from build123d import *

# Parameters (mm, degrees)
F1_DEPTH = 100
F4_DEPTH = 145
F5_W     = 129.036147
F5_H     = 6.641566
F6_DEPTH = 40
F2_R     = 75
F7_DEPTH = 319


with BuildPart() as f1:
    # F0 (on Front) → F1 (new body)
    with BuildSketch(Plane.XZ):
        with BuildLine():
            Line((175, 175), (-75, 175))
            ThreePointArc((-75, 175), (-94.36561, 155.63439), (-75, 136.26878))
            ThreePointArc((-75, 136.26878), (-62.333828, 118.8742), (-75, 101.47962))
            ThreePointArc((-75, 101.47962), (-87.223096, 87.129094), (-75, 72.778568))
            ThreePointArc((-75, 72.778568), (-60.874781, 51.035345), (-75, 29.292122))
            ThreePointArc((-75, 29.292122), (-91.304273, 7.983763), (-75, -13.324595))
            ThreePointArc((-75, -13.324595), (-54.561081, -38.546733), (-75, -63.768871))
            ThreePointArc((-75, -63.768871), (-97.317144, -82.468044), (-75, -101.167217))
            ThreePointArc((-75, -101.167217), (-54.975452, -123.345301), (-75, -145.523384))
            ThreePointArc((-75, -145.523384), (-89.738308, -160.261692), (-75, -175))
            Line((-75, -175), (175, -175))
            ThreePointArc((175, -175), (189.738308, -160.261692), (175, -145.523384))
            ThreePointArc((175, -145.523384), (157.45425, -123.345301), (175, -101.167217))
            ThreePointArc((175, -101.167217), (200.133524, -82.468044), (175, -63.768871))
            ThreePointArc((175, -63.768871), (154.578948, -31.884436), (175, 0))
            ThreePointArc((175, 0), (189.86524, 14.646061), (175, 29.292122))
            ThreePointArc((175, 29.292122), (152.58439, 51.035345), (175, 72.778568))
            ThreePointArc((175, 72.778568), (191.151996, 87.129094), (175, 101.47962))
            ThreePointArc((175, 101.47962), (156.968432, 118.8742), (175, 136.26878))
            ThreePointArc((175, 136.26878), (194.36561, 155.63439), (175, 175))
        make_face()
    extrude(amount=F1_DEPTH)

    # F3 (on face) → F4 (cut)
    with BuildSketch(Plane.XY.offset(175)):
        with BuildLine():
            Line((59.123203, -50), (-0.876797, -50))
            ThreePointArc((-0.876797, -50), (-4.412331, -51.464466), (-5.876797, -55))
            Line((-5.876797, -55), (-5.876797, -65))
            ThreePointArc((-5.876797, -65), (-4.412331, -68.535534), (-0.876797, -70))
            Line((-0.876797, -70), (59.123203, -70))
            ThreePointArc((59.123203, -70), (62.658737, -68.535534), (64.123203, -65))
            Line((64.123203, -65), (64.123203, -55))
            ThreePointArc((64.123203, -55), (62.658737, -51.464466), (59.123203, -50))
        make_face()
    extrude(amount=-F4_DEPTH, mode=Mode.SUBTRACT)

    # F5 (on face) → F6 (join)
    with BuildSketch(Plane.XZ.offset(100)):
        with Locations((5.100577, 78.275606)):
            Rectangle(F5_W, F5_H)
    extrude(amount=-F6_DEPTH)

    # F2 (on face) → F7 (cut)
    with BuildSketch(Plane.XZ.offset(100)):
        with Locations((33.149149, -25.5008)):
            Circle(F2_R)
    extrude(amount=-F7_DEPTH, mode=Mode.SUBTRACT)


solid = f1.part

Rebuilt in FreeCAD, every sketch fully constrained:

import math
import FreeCAD as App
import Part
import Sketcher


def add_polygon(sketch, points):
    """Adds a closed chain of lines whose ends are joined by coincident constraints."""
    first, n = sketch.GeometryCount, len(points)
    for a, b in zip(points, points[1:] + points[:1]):
        sketch.addGeometry(Part.LineSegment(App.Vector(*a, 0), App.Vector(*b, 0)), False)
    for i in range(n):
        sketch.addConstraint(Sketcher.Constraint("Coincident", first + i, 2, first + (i + 1) % n, 1))

doc = App.newDocument("Part")
body = doc.addObject("PartDesign::Body", "Body")

sketch1 = body.newObject("Sketcher::SketchObject", "Sketch")
sketch1.AttachmentSupport = (doc.getObject("XZ_Plane"), [""])
sketch1.MapMode = "FlatFace"
sketch1.addGeometry(Part.LineSegment(App.Vector(175, 175, 0), App.Vector(-75, 175, 0)), False)
sketch1.addGeometry(Part.ArcOfCircle(Part.Circle(App.Vector(-75, 155.63439, 0), App.Vector(0, 0, 1), 19.36561), math.radians(90), math.radians(270)), False)
sketch1.addGeometry(Part.ArcOfCircle(Part.Circle(App.Vector(-80.610989, 118.8742, 0), App.Vector(0, 0, 1), 18.277161), math.radians(-72.121799), math.radians(72.121799)), False)
sketch1.addGeometry(Part.ArcOfCircle(Part.Circle(App.Vector(-72.68743, 87.129094, 0), App.Vector(0, 0, 1), 14.535666), math.radians(99.154442), math.radians(260.845558)), False)
sketch1.addGeometry(Part.ArcOfCircle(Part.Circle(App.Vector(-84.672273, 51.035345, 0), App.Vector(0, 0, 1), 23.797492), math.radians(-66.018551), math.radians(66.018551)), False)
sketch1.addGeometry(Part.ArcOfCircle(Part.Circle(App.Vector(-69.227991, 7.983764, 0), App.Vector(0, 0, 1), 22.076282), math.radians(105.156561), math.radians(254.843439)), False)
sketch1.addGeometry(Part.ArcOfCircle(Part.Circle(App.Vector(-80.342916, -38.546733, 0), App.Vector(0, 0, 1), 25.781835), math.radians(-78.039596), math.radians(78.039596)), False)
sketch1.addGeometry(Part.ArcOfCircle(Part.Circle(App.Vector(-78.324705, -82.468044, 0), App.Vector(0, 0, 1), 18.992439), math.radians(79.918191), math.radians(280.081809)), False)
sketch1.addGeometry(Part.ArcOfCircle(Part.Circle(App.Vector(-77.269336, -123.3453, 0), App.Vector(0, 0, 1), 22.293884), math.radians(-84.157636), math.radians(84.157636)), False)
sketch1.addGeometry(Part.ArcOfCircle(Part.Circle(App.Vector(-75, -160.261692, 0), App.Vector(0, 0, 1), 14.738308), math.radians(90), math.radians(270)), False)
sketch1.addGeometry(Part.LineSegment(App.Vector(-75, -175, 0), App.Vector(175, -175, 0)), False)
sketch1.addGeometry(Part.ArcOfCircle(Part.Circle(App.Vector(175, -160.261692, 0), App.Vector(0, 0, 1), 14.738308), math.radians(-90), math.radians(90)), False)
sketch1.addGeometry(Part.ArcOfCircle(Part.Circle(App.Vector(180.243835, -123.3453, 0), App.Vector(0, 0, 1), 22.789585), math.radians(103.302834), math.radians(256.697166)), False)
sketch1.addGeometry(Part.ArcOfCircle(Part.Circle(App.Vector(180.610732, -82.468044, 0), App.Vector(0, 0, 1), 19.522792), math.radians(-106.702001), math.radians(106.702001)), False)
sketch1.addGeometry(Part.ArcOfCircle(Part.Circle(App.Vector(189.680876, -31.884435, 0), App.Vector(0, 0, 1), 35.101928), math.radians(114.723244), math.radians(245.276756)), False)
sketch1.addGeometry(Part.ArcOfCircle(Part.Circle(App.Vector(175.217563, 14.646061, 0), App.Vector(0, 0, 1), 14.647677), math.radians(-90.85105), math.radians(90.85105)), False)
sketch1.addGeometry(Part.ArcOfCircle(Part.Circle(App.Vector(174.337698, 51.035345, 0), App.Vector(0, 0, 1), 21.753308), math.radians(88.2553), math.radians(271.7447)), False)
sketch1.addGeometry(Part.ArcOfCircle(Part.Circle(App.Vector(176.701009, 87.129094, 0), App.Vector(0, 0, 1), 14.450987), math.radians(-96.759892), math.radians(96.759892)), False)
sketch1.addGeometry(Part.ArcOfCircle(Part.Circle(App.Vector(174.374263, 118.8742, 0), App.Vector(0, 0, 1), 17.405831), math.radians(87.939782), math.radians(272.060218)), False)
sketch1.addGeometry(Part.ArcOfCircle(Part.Circle(App.Vector(175, 155.63439, 0), App.Vector(0, 0, 1), 19.36561), math.radians(-90), math.radians(90)), False)
sketch1.addConstraint(Sketcher.Constraint("Coincident", 0, 2, 1, 1))
sketch1.addConstraint(Sketcher.Constraint("Coincident", 1, 2, 2, 2))
sketch1.addConstraint(Sketcher.Constraint("Coincident", 2, 1, 3, 1))
sketch1.addConstraint(Sketcher.Constraint("Coincident", 3, 2, 4, 2))
sketch1.addConstraint(Sketcher.Constraint("Coincident", 4, 1, 5, 1))
sketch1.addConstraint(Sketcher.Constraint("Coincident", 5, 2, 6, 2))
sketch1.addConstraint(Sketcher.Constraint("Coincident", 6, 1, 7, 1))
sketch1.addConstraint(Sketcher.Constraint("Coincident", 7, 2, 8, 2))
sketch1.addConstraint(Sketcher.Constraint("Coincident", 8, 1, 9, 1))
sketch1.addConstraint(Sketcher.Constraint("Coincident", 9, 2, 10, 1))
sketch1.addConstraint(Sketcher.Constraint("Coincident", 10, 2, 11, 1))
sketch1.addConstraint(Sketcher.Constraint("Coincident", 11, 2, 12, 2))
sketch1.addConstraint(Sketcher.Constraint("Coincident", 12, 1, 13, 1))
sketch1.addConstraint(Sketcher.Constraint("Coincident", 13, 2, 14, 2))
sketch1.addConstraint(Sketcher.Constraint("Coincident", 14, 1, 15, 1))
sketch1.addConstraint(Sketcher.Constraint("Coincident", 15, 2, 16, 2))
sketch1.addConstraint(Sketcher.Constraint("Coincident", 16, 1, 17, 1))
sketch1.addConstraint(Sketcher.Constraint("Coincident", 17, 2, 18, 2))
sketch1.addConstraint(Sketcher.Constraint("Coincident", 18, 1, 19, 1))
sketch1.addConstraint(Sketcher.Constraint("Coincident", 19, 2, 0, 1))
sketch1.addConstraint(Sketcher.Constraint("Horizontal", 0))
sketch1.addConstraint(Sketcher.Constraint("Horizontal", 10))
sketch1.addConstraint(Sketcher.Constraint("PointOnObject", 14, 1, -1))
sketch1.addConstraint(Sketcher.Constraint("DistanceX", 0, 2, 0, 1, 250.0))
sketch1.addConstraint(Sketcher.Constraint("DistanceX", 10, 1, 10, 2, 250.0))
sketch1.addConstraint(Sketcher.Constraint("DistanceX", 1, 3, -1, 1, 75.0))
sketch1.addConstraint(Sketcher.Constraint("DistanceX", 9, 3, -1, 1, 75.0))
sketch1.addConstraint(Sketcher.Constraint("DistanceX", -1, 1, 11, 3, 175.0))
sketch1.addConstraint(Sketcher.Constraint("DistanceX", -1, 1, 19, 3, 175.0))
sketch1.addConstraint(Sketcher.Constraint("DistanceX", 0, 2, -1, 1, 75.0))
sketch1.addConstraint(Sketcher.Constraint("DistanceY", -1, 1, 0, 2, 175.0))
sketch1.addConstraint(Sketcher.Constraint("DistanceX", 1, 2, -1, 1, 75.0))
sketch1.addConstraint(Sketcher.Constraint("DistanceX", 2, 1, -1, 1, 75.0))
sketch1.addConstraint(Sketcher.Constraint("DistanceX", 3, 2, -1, 1, 75.0))
sketch1.addConstraint(Sketcher.Constraint("DistanceX", 4, 1, -1, 1, 75.0))
sketch1.addConstraint(Sketcher.Constraint("DistanceX", 5, 2, -1, 1, 75.0))
sketch1.addConstraint(Sketcher.Constraint("DistanceX", 6, 1, -1, 1, 75.0))
sketch1.addConstraint(Sketcher.Constraint("DistanceX", 7, 2, -1, 1, 75.0))
sketch1.addConstraint(Sketcher.Constraint("DistanceX", 8, 1, -1, 1, 75.0))
sketch1.addConstraint(Sketcher.Constraint("DistanceX", 9, 2, -1, 1, 75.0))
sketch1.addConstraint(Sketcher.Constraint("DistanceY", 9, 2, -1, 1, 175.0))
sketch1.addConstraint(Sketcher.Constraint("DistanceX", -1, 1, 11, 2, 175.0))
sketch1.addConstraint(Sketcher.Constraint("DistanceX", -1, 1, 12, 1, 175.0))
sketch1.addConstraint(Sketcher.Constraint("DistanceX", -1, 1, 13, 2, 175.0))
sketch1.addConstraint(Sketcher.Constraint("DistanceX", -1, 1, 14, 1, 175.0))
sketch1.addConstraint(Sketcher.Constraint("DistanceX", -1, 1, 15, 2, 175.0))
sketch1.addConstraint(Sketcher.Constraint("DistanceX", -1, 1, 16, 1, 175.0))
sketch1.addConstraint(Sketcher.Constraint("DistanceX", -1, 1, 17, 2, 175.0))
sketch1.addConstraint(Sketcher.Constraint("DistanceX", -1, 1, 18, 1, 175.0))
sketch1.addConstraint(Sketcher.Constraint("Radius", 1, 19.36561))
sketch1.addConstraint(Sketcher.Constraint("Radius", 2, 18.277161))
sketch1.addConstraint(Sketcher.Constraint("Radius", 4, 23.797492))
sketch1.addConstraint(Sketcher.Constraint("Radius", 7, 18.992439))
sketch1.addConstraint(Sketcher.Constraint("Radius", 13, 19.522792))
sketch1.addConstraint(Sketcher.Constraint("Radius", 18, 17.405831))
sketch1.addConstraint(Sketcher.Constraint("Radius", 19, 19.36561))
sketch1.addConstraint(Sketcher.Constraint("Radius", 3, 14.535666))
sketch1.addConstraint(Sketcher.Constraint("Radius", 5, 22.076282))
sketch1.addConstraint(Sketcher.Constraint("Radius", 6, 25.781835))
sketch1.addConstraint(Sketcher.Constraint("Radius", 8, 22.293884))
sketch1.addConstraint(Sketcher.Constraint("Radius", 9, 14.738308))
sketch1.addConstraint(Sketcher.Constraint("Radius", 11, 14.738308))
sketch1.addConstraint(Sketcher.Constraint("Radius", 12, 22.789585))
sketch1.addConstraint(Sketcher.Constraint("Radius", 14, 35.101928))
sketch1.addConstraint(Sketcher.Constraint("Radius", 15, 14.647677))
sketch1.addConstraint(Sketcher.Constraint("Radius", 16, 21.753308))
sketch1.addConstraint(Sketcher.Constraint("Radius", 17, 14.450987))
sketch1.addConstraint(Sketcher.Constraint("DistanceY", -1, 1, 2, 3, 118.8742))
sketch1.addConstraint(Sketcher.Constraint("DistanceY", 8, 3, -1, 1, 123.3453))
sketch1.addConstraint(Sketcher.Constraint("DistanceY", 12, 3, -1, 1, 123.3453))
sketch1.addConstraint(Sketcher.Constraint("DistanceY", -1, 1, 18, 3, 118.8742))
sketch1.addConstraint(Sketcher.Constraint("DistanceY", 14, 3, 5, 3, 39.868199))
sketch1.addConstraint(Sketcher.Constraint("DistanceX", 18, 3, 15, 3, 0.8433))
sketch1.addConstraint(Sketcher.Constraint("DistanceX", 3, 3, -1, 1, 72.68743))
sketch1.addConstraint(Sketcher.Constraint("DistanceX", 5, 3, -1, 1, 69.227991))
sketch1.addConstraint(Sketcher.Constraint("DistanceX", -1, 1, 17, 3, 176.701009))
sketch1.addConstraint(Sketcher.Constraint("DistanceY", -1, 1, 4, 1, 29.292122))
sketch1.addConstraint(Sketcher.Constraint("DistanceY", 6, 1, -1, 1, 63.768871))
pad1 = body.newObject("PartDesign::Pad", "Pad")
pad1.Profile = sketch1
pad1.Length = 100

sketch2 = body.newObject("Sketcher::SketchObject", "Sketch001")
sketch2.AttachmentSupport = (doc.getObject("XY_Plane"), [""])
sketch2.MapMode = "FlatFace"
sketch2.AttachmentOffset = App.Placement(App.Vector(0, 0, 175), App.Rotation())
sketch2.addGeometry(Part.LineSegment(App.Vector(59.123203, -50, 0), App.Vector(-0.876797, -50, 0)), False)
sketch2.addGeometry(Part.ArcOfCircle(Part.Circle(App.Vector(-0.876797, -55, 0), App.Vector(0, 0, 1), 5), math.radians(89.999996), math.radians(180.000004)), False)
sketch2.addGeometry(Part.LineSegment(App.Vector(-5.876797, -55, 0), App.Vector(-5.876797, -65, 0)), False)
sketch2.addGeometry(Part.ArcOfCircle(Part.Circle(App.Vector(-0.876797, -65, 0), App.Vector(0, 0, 1), 5), math.radians(179.999996), math.radians(270.000004)), False)
sketch2.addGeometry(Part.LineSegment(App.Vector(-0.876797, -70, 0), App.Vector(59.123203, -70, 0)), False)
sketch2.addGeometry(Part.ArcOfCircle(Part.Circle(App.Vector(59.123203, -65, 0), App.Vector(0, 0, 1), 5), math.radians(-90.000004), math.radians(0.000004)), False)
sketch2.addGeometry(Part.LineSegment(App.Vector(64.123203, -65, 0), App.Vector(64.123203, -55, 0)), False)
sketch2.addGeometry(Part.ArcOfCircle(Part.Circle(App.Vector(59.123203, -55, 0), App.Vector(0, 0, 1), 5), math.radians(-0.000004), math.radians(90.000004)), False)
sketch2.addConstraint(Sketcher.Constraint("Tangent", 0, 2, 1, 1))
sketch2.addConstraint(Sketcher.Constraint("Tangent", 1, 2, 2, 1))
sketch2.addConstraint(Sketcher.Constraint("Tangent", 2, 2, 3, 1))
sketch2.addConstraint(Sketcher.Constraint("Tangent", 3, 2, 4, 1))
sketch2.addConstraint(Sketcher.Constraint("Tangent", 4, 2, 5, 1))
sketch2.addConstraint(Sketcher.Constraint("Tangent", 5, 2, 6, 1))
sketch2.addConstraint(Sketcher.Constraint("Tangent", 6, 2, 7, 1))
sketch2.addConstraint(Sketcher.Constraint("Tangent", 7, 2, 0, 1))
sketch2.addConstraint(Sketcher.Constraint("Horizontal", 0))
sketch2.addConstraint(Sketcher.Constraint("Vertical", 2))
sketch2.addConstraint(Sketcher.Constraint("Horizontal", 4))
sketch2.addConstraint(Sketcher.Constraint("Vertical", 6))
sketch2.addConstraint(Sketcher.Constraint("Equal", 1, 3))
sketch2.addConstraint(Sketcher.Constraint("Equal", 3, 5))
sketch2.addConstraint(Sketcher.Constraint("Equal", 5, 7))
sketch2.addConstraint(Sketcher.Constraint("Radius", 1, 5.0))
sketch2.addConstraint(Sketcher.Constraint("DistanceX", 0, 2, 0, 1, 60.0))
sketch2.addConstraint(Sketcher.Constraint("DistanceY", 2, 2, 2, 1, 10.0))
sketch2.addConstraint(Sketcher.Constraint("DistanceY", 1, 3, -1, 1, 55.0))
sketch2.addConstraint(Sketcher.Constraint("DistanceX", 1, 3, -1, 1, 0.876797))
pocket1 = body.newObject("PartDesign::Pocket", "Pocket")
pocket1.Profile = sketch2
pocket1.Length = 145

sketch3 = body.newObject("Sketcher::SketchObject", "Sketch002")
sketch3.AttachmentSupport = (doc.getObject("XZ_Plane"), [""])
sketch3.MapMode = "FlatFace"
sketch3.AttachmentOffset = App.Placement(App.Vector(0, 0, 100), App.Rotation())
add_polygon(sketch3, [(-59.417496, 81.596389), (-59.417496, 74.954823), (69.618651, 74.954823), (69.618651, 81.596389)])
sketch3.addConstraint(Sketcher.Constraint("Vertical", 0))
sketch3.addConstraint(Sketcher.Constraint("Horizontal", 1))
sketch3.addConstraint(Sketcher.Constraint("Vertical", 2))
sketch3.addConstraint(Sketcher.Constraint("Horizontal", 3))
sketch3.addConstraint(Sketcher.Constraint("DistanceX", 1, 1, 1, 2, 129.036147))
sketch3.addConstraint(Sketcher.Constraint("DistanceY", 0, 2, 0, 1, 6.641566))
sketch3.addConstraint(Sketcher.Constraint("DistanceX", -1, 1, 1, 2, 69.618651))
sketch3.addConstraint(Sketcher.Constraint("DistanceY", -1, 1, 2, 2, 81.596389))
pad2 = body.newObject("PartDesign::Pad", "Pad001")
pad2.Profile = sketch3
pad2.Length = 40
pad2.Reversed = True

sketch4 = body.newObject("Sketcher::SketchObject", "Sketch003")
sketch4.AttachmentSupport = (doc.getObject("XZ_Plane"), [""])
sketch4.MapMode = "FlatFace"
sketch4.AttachmentOffset = App.Placement(App.Vector(0, 0, 100), App.Rotation())
sketch4.addGeometry(Part.Circle(App.Vector(33.149149, -25.5008, 0), App.Vector(0, 0, 1), 75), False)
sketch4.addConstraint(Sketcher.Constraint("Diameter", 0, 150.0))
sketch4.addConstraint(Sketcher.Constraint("DistanceY", 0, 3, -1, 1, 25.5008))
sketch4.addConstraint(Sketcher.Constraint("DistanceX", -1, 1, 0, 3, 33.149149))
pocket2 = body.newObject("PartDesign::Pocket", "Pocket001")
pocket2.Profile = sketch4
pocket2.Length = 319

doc.recompute()
